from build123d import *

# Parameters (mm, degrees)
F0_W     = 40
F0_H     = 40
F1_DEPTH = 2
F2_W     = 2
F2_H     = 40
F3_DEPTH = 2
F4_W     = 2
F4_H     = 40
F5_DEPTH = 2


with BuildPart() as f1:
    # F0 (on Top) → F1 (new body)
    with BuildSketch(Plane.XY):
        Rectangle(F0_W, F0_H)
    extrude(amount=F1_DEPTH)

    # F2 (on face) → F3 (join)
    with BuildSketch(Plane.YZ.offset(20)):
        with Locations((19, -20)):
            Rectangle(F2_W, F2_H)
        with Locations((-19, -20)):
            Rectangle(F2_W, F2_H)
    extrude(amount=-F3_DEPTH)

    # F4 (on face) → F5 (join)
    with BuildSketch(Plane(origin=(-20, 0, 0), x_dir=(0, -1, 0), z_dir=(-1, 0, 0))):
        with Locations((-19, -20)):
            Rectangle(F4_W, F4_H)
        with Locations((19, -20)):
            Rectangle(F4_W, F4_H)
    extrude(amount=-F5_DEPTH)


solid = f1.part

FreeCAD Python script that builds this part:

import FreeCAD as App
import Part
import Sketcher
Q = App.Units.Quantity

doc = App.newDocument("Part")
body = doc.addObject("PartDesign::Body", "Body")

# Sketch on XY plane
sketch1 = doc.addObject("Sketcher::SketchObject", "Sketch")
body.addObject(sketch1)
sketch1.AttachmentSupport = (doc.XY_Plane, [""])
sketch1.MapMode = "FlatFace"
sketch1.addGeometry([
    Part.LineSegment(App.Vector(-20, 20, 0), App.Vector(-20, -20, 0)),
    Part.LineSegment(App.Vector(-20, -20, 0), App.Vector(20, -20, 0)),
    Part.LineSegment(App.Vector(20, -20, 0), App.Vector(20, 20, 0)),
    Part.LineSegment(App.Vector(20, 20, 0), App.Vector(-20, 20, 0)),
], False)
sketch1.addConstraint([
    Sketcher.Constraint("Coincident", 0, 2, 1, 1),
    Sketcher.Constraint("Coincident", 1, 2, 2, 1),
    Sketcher.Constraint("Coincident", 2, 2, 3, 1),
    Sketcher.Constraint("Coincident", 3, 2, 0, 1),
    Sketcher.Constraint("Vertical", 0),
    Sketcher.Constraint("Horizontal", 1),
    Sketcher.Constraint("Vertical", 2),
    Sketcher.Constraint("Horizontal", 3),
    Sketcher.Constraint("Symmetric", 0, 2, 2, 2, -1, 1),
    Sketcher.Constraint("Equal", 3, 0),
    Sketcher.Constraint("DistanceX", 1, 1, 1, 2, Q("40 mm")),
])
pad1 = doc.addObject("PartDesign::Pad", "Pad")
body.addObject(pad1)
pad1.Profile = sketch1
pad1.Length = 2

# Sketch on YZ plane
sketch2 = doc.addObject("Sketcher::SketchObject", "Sketch001")
body.addObject(sketch2)
sketch2.AttachmentSupport = (doc.YZ_Plane, [""])
sketch2.MapMode = "FlatFace"
sketch2.AttachmentOffset = App.Placement(App.Vector(0, 0, 20), App.Rotation())
sketch2.addGeometry([
    Part.LineSegment(App.Vector(18, 0, 0), App.Vector(18, -40, 0)),  # 0
    Part.LineSegment(App.Vector(18, -40, 0), App.Vector(20, -40, 0)),  # 1
    Part.LineSegment(App.Vector(20, -40, 0), App.Vector(20, 0, 0)),  # 2
    Part.LineSegment(App.Vector(20, 0, 0), App.Vector(18, 0, 0)),  # 3
    Part.LineSegment(App.Vector(-20, 0, 0), App.Vector(-20, -40, 0)),  # 4
    Part.LineSegment(App.Vector(-20, -40, 0), App.Vector(-18, -40, 0)),  # 5
    Part.LineSegment(App.Vector(-18, -40, 0), App.Vector(-18, 0, 0)),  # 6
    Part.LineSegment(App.Vector(-18, 0, 0), App.Vector(-20, 0, 0)),  # 7
], False)
sketch2.addConstraint([
    Sketcher.Constraint("Coincident", 0, 2, 1, 1),
    Sketcher.Constraint("Coincident", 1, 2, 2, 1),
    Sketcher.Constraint("Coincident", 2, 2, 3, 1),
    Sketcher.Constraint("Coincident", 3, 2, 0, 1),
    Sketcher.Constraint("Coincident", 4, 2, 5, 1),
    Sketcher.Constraint("Coincident", 5, 2, 6, 1),
    Sketcher.Constraint("Coincident", 6, 2, 7, 1),
    Sketcher.Constraint("Coincident", 7, 2, 4, 1),
    Sketcher.Constraint("Vertical", 0),
    Sketcher.Constraint("Horizontal", 1),
    Sketcher.Constraint("Vertical", 2),
    Sketcher.Constraint("Horizontal", 3),
    Sketcher.Constraint("Vertical", 4),
    Sketcher.Constraint("Horizontal", 5),
    Sketcher.Constraint("Vertical", 6),
    Sketcher.Constraint("Horizontal", 7),
    Sketcher.Constraint("Symmetric", 3, 2, 6, 2, -1, 1),
    Sketcher.Constraint("Symmetric", 1, 2, 4, 2, -2),
    Sketcher.Constraint("PointOnObject", 2, 2, -1),
    Sketcher.Constraint("DistanceX", 1, 1, 1, 2, Q("2 mm")),
    Sketcher.Constraint("DistanceY", 0, 2, 0, 1, Q("40 mm")),
    Sketcher.Constraint("DistanceX", -1, 1, 0, 2, Q("18 mm")),
])
pad2 = doc.addObject("PartDesign::Pad", "Pad001")
body.addObject(pad2)
pad2.Profile = sketch2
pad2.Length = 2
pad2.Reversed = True

# Sketch on YZ plane
sketch3 = doc.addObject("Sketcher::SketchObject", "Sketch002")
body.addObject(sketch3)
sketch3.AttachmentSupport = (doc.YZ_Plane, [""])
sketch3.MapMode = "FlatFace"
sketch3.AttachmentOffset = App.Placement(App.Vector(0, 0, -20), App.Rotation())
sketch3.addGeometry([
    Part.LineSegment(App.Vector(20, 0, 0), App.Vector(20, -40, 0)),  # 0
    Part.LineSegment(App.Vector(20, -40, 0), App.Vector(18, -40, 0)),  # 1
    Part.LineSegment(App.Vector(18, -40, 0), App.Vector(18, 0, 0)),  # 2
    Part.LineSegment(App.Vector(18, 0, 0), App.Vector(20, 0, 0)),  # 3
    Part.LineSegment(App.Vector(-18, 0, 0), App.Vector(-18, -40, 0)),  # 4
    Part.LineSegment(App.Vector(-18, -40, 0), App.Vector(-20, -40, 0)),  # 5
    Part.LineSegment(App.Vector(-20, -40, 0), App.Vector(-20, 0, 0)),  # 6
    Part.LineSegment(App.Vector(-20, 0, 0), App.Vector(-18, 0, 0)),  # 7
], False)
sketch3.addConstraint([
    Sketcher.Constraint("Coincident", 0, 2, 1, 1),
    Sketcher.Constraint("Coincident", 1, 2, 2, 1),
    Sketcher.Constraint("Coincident", 2, 2, 3, 1),
    Sketcher.Constraint("Coincident", 3, 2, 0, 1),
    Sketcher.Constraint("Coincident", 4, 2, 5, 1),
    Sketcher.Constraint("Coincident", 5, 2, 6, 1),
    Sketcher.Constraint("Coincident", 6, 2, 7, 1),
    Sketcher.Constraint("Coincident", 7, 2, 4, 1),
    Sketcher.Constraint("Vertical", 0),
    Sketcher.Constraint("Horizontal", 1),
    Sketcher.Constraint("Vertical", 2),
    Sketcher.Constraint("Horizontal", 3),
    Sketcher.Constraint("Vertical", 4),
    Sketcher.Constraint("Horizontal", 5),
    Sketcher.Constraint("Vertical", 6),
    Sketcher.Constraint("Horizontal", 7),
    Sketcher.Constraint("Symmetric", 3, 2, 6, 2, -1, 1),
    Sketcher.Constraint("Symmetric", 1, 2, 4, 2, -2),
    Sketcher.Constraint("PointOnObject", 2, 2, -1),
    Sketcher.Constraint("DistanceX", 1, 2, 1, 1, Q("2 mm")),
    Sketcher.Constraint("DistanceY", 0, 2, 0, 1, Q("40 mm")),
    Sketcher.Constraint("DistanceX", -1, 1, 0, 2, Q("20 mm")),
])
pad3 = doc.addObject("PartDesign::Pad", "Pad002")
body.addObject(pad3)
pad3.Profile = sketch3
pad3.Length = 2

doc.recompute()
